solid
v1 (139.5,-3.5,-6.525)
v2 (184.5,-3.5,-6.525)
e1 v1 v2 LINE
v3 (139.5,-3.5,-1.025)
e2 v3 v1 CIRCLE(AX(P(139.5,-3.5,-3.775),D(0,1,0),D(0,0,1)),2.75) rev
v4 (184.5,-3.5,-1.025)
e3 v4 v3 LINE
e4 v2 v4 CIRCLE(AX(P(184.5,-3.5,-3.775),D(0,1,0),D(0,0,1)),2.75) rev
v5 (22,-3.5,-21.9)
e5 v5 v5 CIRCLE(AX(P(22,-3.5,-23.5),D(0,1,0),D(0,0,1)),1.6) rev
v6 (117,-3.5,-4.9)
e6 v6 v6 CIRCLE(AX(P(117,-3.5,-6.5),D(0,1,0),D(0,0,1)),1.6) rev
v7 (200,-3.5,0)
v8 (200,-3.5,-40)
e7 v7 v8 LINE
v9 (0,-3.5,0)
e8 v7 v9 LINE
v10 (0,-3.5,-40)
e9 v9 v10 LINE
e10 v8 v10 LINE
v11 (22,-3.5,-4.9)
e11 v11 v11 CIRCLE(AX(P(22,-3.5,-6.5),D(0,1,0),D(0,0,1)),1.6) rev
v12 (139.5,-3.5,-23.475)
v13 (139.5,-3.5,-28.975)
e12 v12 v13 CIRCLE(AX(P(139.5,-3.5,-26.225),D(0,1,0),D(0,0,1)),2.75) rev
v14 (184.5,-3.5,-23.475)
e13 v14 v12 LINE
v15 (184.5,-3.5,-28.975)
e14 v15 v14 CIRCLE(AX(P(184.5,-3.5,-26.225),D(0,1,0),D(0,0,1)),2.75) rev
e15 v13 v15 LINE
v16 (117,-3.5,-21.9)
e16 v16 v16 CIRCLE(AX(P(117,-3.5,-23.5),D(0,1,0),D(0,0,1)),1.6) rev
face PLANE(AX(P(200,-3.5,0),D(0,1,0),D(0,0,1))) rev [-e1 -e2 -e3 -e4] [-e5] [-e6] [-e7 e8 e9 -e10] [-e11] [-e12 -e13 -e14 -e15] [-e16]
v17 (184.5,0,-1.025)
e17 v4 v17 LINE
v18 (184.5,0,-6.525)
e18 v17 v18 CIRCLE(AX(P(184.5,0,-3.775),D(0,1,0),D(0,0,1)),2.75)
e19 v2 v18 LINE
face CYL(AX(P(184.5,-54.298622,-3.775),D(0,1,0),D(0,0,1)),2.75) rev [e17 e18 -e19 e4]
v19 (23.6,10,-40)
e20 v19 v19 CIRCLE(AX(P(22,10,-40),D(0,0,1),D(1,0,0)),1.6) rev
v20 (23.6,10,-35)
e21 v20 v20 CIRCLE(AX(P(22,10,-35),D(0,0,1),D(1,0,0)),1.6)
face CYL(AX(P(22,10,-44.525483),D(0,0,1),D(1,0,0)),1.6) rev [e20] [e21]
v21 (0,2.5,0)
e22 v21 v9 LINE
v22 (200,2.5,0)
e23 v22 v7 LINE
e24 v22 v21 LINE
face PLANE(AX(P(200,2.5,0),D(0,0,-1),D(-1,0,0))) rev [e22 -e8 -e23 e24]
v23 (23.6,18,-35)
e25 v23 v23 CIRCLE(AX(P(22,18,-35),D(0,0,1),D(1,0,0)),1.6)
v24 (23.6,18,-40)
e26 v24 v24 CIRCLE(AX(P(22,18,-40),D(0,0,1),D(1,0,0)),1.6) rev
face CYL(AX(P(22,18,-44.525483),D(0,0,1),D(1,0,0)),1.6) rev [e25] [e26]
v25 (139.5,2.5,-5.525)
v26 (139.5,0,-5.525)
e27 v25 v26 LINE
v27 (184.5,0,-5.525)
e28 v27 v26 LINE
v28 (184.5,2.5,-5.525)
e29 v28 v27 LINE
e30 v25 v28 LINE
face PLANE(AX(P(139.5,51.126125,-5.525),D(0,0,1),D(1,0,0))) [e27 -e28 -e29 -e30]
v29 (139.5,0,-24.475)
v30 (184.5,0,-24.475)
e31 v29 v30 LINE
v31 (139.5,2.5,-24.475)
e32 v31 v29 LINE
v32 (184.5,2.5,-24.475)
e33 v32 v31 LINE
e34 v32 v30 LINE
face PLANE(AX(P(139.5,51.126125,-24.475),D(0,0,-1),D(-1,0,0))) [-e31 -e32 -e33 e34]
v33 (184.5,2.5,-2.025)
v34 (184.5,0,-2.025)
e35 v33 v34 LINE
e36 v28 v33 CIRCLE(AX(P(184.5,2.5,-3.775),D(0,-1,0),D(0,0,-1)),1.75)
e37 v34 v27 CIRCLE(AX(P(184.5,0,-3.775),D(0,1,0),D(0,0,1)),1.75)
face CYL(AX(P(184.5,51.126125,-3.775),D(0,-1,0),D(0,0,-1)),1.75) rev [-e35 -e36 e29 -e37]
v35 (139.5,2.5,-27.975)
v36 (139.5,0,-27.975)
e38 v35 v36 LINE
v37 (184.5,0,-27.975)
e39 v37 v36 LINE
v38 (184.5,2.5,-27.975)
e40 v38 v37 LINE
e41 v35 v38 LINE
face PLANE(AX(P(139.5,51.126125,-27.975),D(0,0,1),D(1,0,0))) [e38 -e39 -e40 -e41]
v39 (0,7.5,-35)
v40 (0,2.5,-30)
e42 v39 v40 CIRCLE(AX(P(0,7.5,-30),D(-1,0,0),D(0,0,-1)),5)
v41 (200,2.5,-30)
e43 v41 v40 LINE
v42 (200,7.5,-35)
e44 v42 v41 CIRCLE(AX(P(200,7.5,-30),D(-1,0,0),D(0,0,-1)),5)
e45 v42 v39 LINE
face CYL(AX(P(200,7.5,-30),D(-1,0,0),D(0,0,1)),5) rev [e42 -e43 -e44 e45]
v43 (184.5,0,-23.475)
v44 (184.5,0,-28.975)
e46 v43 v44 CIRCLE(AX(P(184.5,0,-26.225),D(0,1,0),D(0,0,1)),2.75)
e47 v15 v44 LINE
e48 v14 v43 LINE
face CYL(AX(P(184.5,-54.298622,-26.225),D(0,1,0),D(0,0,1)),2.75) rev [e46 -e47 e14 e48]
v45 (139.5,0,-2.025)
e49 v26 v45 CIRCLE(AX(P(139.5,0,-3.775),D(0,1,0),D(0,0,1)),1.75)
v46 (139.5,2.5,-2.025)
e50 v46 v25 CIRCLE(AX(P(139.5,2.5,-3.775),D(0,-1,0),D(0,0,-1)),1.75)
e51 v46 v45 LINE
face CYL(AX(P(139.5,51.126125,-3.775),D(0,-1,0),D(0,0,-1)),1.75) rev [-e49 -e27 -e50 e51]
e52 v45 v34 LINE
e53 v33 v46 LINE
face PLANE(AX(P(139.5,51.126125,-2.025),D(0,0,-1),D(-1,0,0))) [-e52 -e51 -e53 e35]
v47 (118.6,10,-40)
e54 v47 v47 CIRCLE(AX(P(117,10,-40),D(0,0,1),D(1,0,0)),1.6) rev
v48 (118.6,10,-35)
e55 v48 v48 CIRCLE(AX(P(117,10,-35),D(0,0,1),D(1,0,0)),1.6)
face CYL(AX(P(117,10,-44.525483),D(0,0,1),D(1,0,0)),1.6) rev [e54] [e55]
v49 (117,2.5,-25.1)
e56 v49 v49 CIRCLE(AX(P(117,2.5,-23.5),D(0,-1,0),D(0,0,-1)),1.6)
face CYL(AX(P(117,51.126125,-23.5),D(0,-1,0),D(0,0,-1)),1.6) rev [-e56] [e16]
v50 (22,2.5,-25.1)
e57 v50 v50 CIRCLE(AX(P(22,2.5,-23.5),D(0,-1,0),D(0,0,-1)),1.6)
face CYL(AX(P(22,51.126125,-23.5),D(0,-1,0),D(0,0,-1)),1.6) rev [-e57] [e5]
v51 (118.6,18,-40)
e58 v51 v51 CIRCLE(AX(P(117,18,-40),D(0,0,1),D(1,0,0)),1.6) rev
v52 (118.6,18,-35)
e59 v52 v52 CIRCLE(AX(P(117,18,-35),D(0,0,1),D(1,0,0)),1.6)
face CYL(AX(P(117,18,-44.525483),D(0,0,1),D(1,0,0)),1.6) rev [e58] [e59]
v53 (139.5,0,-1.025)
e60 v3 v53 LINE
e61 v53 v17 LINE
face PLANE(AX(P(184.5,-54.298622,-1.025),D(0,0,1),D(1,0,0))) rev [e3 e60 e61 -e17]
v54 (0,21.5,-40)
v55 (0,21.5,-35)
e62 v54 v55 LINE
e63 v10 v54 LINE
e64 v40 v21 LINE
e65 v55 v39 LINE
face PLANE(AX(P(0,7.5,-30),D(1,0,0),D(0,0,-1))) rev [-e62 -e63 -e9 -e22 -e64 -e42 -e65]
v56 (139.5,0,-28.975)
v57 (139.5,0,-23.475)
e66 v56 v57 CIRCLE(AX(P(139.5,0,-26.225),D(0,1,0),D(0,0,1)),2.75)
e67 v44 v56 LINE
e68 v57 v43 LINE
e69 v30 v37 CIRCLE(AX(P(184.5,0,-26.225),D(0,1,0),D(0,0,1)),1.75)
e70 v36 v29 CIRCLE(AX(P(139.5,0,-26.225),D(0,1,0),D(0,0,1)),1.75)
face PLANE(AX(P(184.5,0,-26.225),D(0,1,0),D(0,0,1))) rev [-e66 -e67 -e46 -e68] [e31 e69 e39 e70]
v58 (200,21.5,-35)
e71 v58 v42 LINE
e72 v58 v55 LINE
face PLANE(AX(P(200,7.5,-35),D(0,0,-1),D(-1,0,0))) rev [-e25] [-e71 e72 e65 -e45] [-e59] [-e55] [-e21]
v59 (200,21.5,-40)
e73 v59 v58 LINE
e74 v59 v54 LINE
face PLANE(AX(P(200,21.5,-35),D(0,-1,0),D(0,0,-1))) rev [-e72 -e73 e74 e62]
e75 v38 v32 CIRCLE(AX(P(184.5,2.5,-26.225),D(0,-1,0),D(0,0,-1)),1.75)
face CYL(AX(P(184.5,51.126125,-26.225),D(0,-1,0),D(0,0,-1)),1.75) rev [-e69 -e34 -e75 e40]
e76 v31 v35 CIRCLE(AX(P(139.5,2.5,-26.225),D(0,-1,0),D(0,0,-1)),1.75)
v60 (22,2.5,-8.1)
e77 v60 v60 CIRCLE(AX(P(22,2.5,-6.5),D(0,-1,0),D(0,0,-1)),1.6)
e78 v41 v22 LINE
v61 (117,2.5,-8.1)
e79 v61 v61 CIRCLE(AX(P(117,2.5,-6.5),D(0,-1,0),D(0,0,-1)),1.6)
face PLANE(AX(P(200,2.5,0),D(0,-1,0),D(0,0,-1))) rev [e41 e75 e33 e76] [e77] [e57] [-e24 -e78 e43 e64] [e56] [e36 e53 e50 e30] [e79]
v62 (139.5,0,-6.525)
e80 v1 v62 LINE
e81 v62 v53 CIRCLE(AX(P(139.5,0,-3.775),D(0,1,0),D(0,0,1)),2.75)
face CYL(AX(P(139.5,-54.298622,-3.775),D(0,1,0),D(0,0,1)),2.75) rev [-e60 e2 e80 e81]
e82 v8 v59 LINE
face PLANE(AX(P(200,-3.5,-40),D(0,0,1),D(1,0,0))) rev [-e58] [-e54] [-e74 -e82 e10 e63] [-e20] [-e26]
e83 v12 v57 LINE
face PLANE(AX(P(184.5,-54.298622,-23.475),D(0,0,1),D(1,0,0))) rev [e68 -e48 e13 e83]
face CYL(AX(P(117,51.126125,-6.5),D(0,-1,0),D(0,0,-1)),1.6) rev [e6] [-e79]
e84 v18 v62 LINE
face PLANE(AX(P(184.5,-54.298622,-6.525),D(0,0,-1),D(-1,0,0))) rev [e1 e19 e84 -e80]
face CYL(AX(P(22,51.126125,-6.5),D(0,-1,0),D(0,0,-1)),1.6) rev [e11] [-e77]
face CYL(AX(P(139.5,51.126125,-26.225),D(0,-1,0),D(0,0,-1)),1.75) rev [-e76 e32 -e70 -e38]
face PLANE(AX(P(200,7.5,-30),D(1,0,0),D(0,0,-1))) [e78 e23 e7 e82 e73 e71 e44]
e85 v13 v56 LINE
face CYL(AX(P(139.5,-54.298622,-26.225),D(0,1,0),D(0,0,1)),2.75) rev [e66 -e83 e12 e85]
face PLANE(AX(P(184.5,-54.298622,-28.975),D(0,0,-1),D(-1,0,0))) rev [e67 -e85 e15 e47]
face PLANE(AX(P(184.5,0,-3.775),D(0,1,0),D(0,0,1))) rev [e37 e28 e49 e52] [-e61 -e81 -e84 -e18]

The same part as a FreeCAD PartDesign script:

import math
import FreeCAD as App
import Part
import Sketcher

V = App.Vector
Q = App.Units.Quantity

doc = App.newDocument("Part")
body = doc.addObject("PartDesign::Body", "Body")

sketch1 = body.newObject("Sketcher::SketchObject", "Sketch")
sketch1.AttachmentSupport = (doc.getObject("YZ_Plane"), [""])
sketch1.MapMode = "FlatFace"
sketch1.addGeometry([
    Part.LineSegment(V(2, -30, 0), V(2, 0, 0)),
    Part.LineSegment(V(2, 0, 0), V(-4, 0, 0)),
    Part.LineSegment(V(-4, 0, 0), V(-4, -40, 0)),
    Part.LineSegment(V(-4, -40, 0), V(22, -40, 0)),
    Part.LineSegment(V(22, -40, 0), V(22, -35, 0)),
    Part.LineSegment(V(22, -35, 0), V(8, -35, 0)),
    Part.ArcOfCircle(Part.Circle(V(8, -30, 0), V(0, 0, 1), 5), math.radians(180), math.radians(270)),
], False)
sketch1.addConstraint([
    Sketcher.Constraint("Coincident", 0, 2, 1, 1),
    Sketcher.Constraint("Coincident", 1, 2, 2, 1),
    Sketcher.Constraint("Coincident", 2, 2, 3, 1),
    Sketcher.Constraint("Coincident", 3, 2, 4, 1),
    Sketcher.Constraint("Coincident", 4, 2, 5, 1),
    Sketcher.Constraint("Tangent", 5, 2, 6, 2),
    Sketcher.Constraint("Tangent", 6, 1, 0, 1),
    Sketcher.Constraint("Vertical", 0),
    Sketcher.Constraint("Horizontal", 1),
    Sketcher.Constraint("Vertical", 2),
    Sketcher.Constraint("Horizontal", 3),
    Sketcher.Constraint("Vertical", 4),
    Sketcher.Constraint("Horizontal", 5),
    Sketcher.Constraint("PointOnObject", 0, 2, -1),
    Sketcher.Constraint("Radius", 6, Q("5 mm")),
    Sketcher.Constraint("DistanceX", 1, 2, 1, 1, Q("6 mm")),
    Sketcher.Constraint("DistanceX", 3, 1, 3, 2, Q("25 mm")),
    Sketcher.Constraint("DistanceY", 0, 1, 0, 2, Q("30 mm")),
    Sketcher.Constraint("DistanceY", 2, 2, 2, 1, Q("40 mm")),
    Sketcher.Constraint("DistanceX", -1, 1, 6, 3, Q("7.5 mm")),
])
pad1 = body.newObject("PartDesign::Pad", "Pad")
pad1.Profile = sketch1
pad1.Length = 200

sketch2 = body.newObject("Sketcher::SketchObject", "Sketch001")
sketch2.AttachmentSupport = (doc.getObject("XZ_Plane"), [""])
sketch2.MapMode = "FlatFace"
sketch2.addGeometry([
    Part.Circle(V(22, -23.5, 0), V(0, 0, 1), 1.6),
    Part.Circle(V(22, -6.5, 0), V(0, 0, 1), 1.6),
    Part.Circle(V(117, -23.5, 0), V(0, 0, 1), 1.6),
    Part.Circle(V(117, -6.5, 0), V(0, 0, 1), 1.6),
    Part.LineSegment(V(184.5, -28, 0), V(139.5, -28, 0)),
    Part.ArcOfCircle(Part.Circle(V(139.5, -26.2, 0), V(0, 0, 1), 1.8), math.radians(90), math.radians(270)),
    Part.LineSegment(V(139.5, -24.5, 0), V(184.5, -24.5, 0)),
    Part.ArcOfCircle(Part.Circle(V(184.5, -26.2, 0), V(0, 0, 1), 1.8), math.radians(-90), math.radians(90)),
    Part.LineSegment(V(184.5, -5.5, 0), V(139.5, -5.5, 0)),
    Part.ArcOfCircle(Part.Circle(V(139.5, -3.8, 0), V(0, 0, 1), 1.8), math.radians(90), math.radians(270)),
    Part.LineSegment(V(139.5, -2, 0), V(184.5, -2, 0)),
    Part.ArcOfCircle(Part.Circle(V(184.5, -3.8, 0), V(0, 0, 1), 1.8), math.radians(-90), math.radians(90)),
], False)
sketch2.addConstraint([
    Sketcher.Constraint("Tangent", 4, 2, 5, 2),
    Sketcher.Constraint("Tangent", 5, 1, 6, 1),
    Sketcher.Constraint("Tangent", 6, 2, 7, 2),
    Sketcher.Constraint("Tangent", 7, 1, 4, 1),
    Sketcher.Constraint("Tangent", 8, 2, 9, 2),
    Sketcher.Constraint("Tangent", 9, 1, 10, 1),
    Sketcher.Constraint("Tangent", 10, 2, 11, 2),
    Sketcher.Constraint("Tangent", 11, 1, 8, 1),
    Sketcher.Constraint("Horizontal", 4),
    Sketcher.Constraint("Horizontal", 6),
    Sketcher.Constraint("Horizontal", 8),
    Sketcher.Constraint("Horizontal", 10),
    Sketcher.Constraint("Equal", 0, 1),
    Sketcher.Constraint("Equal", 1, 2),
    Sketcher.Constraint("Equal", 2, 3),
    Sketcher.Constraint("Equal", 7, 9),
    Sketcher.Constraint("Horizontal", 0, 3, 2, 3),
    Sketcher.Constraint("Horizontal", 1, 3, 3, 3),
    Sketcher.Constraint("Vertical", 0, 3, 1, 3),
    Sketcher.Constraint("Vertical", 2, 3, 3, 3),
    Sketcher.Constraint("Vertical", 5, 3, 9, 3),
    Sketcher.Constraint("Vertical", 7, 3, 11, 3),
    Sketcher.Constraint("Diameter", 0, Q("3.2 mm")),
    Sketcher.Constraint("DistanceX", 4, 2, 4, 1, Q("45 mm")),
    Sketcher.Constraint("Radius", 5, Q("1.75 mm")),
    Sketcher.Constraint("DistanceX", -1, 1, 0, 3, Q("22 mm")),
    Sketcher.Constraint("DistanceX", -1, 1, 2, 3, Q("117 mm")),
    Sketcher.Constraint("DistanceY", 0, 3, 1, 3, Q("17 mm")),
    Sketcher.Constraint("DistanceY", 0, 3, -1, 1, Q("23.5 mm")),
    Sketcher.Constraint("DistanceX", -1, 1, 5, 3, Q("139.5 mm")),
    Sketcher.Constraint("DistanceY", 4, 2, 9, 3, Q("24.2 mm")),
    Sketcher.Constraint("DistanceY", 5, 3, -1, 1, Q("26.225 mm")),
])
pocket1 = body.newObject("PartDesign::Pocket", "Pocket")
pocket1.Profile = sketch2
pocket1.Length = 2.5

sketch3 = body.newObject("Sketcher::SketchObject", "Sketch002")
sketch3.AttachmentSupport = (doc.getObject("XZ_Plane"), [""])
sketch3.MapMode = "FlatFace"
sketch3.AttachmentOffset = App.Placement(V(0, 0, 3.5), App.Rotation())
sketch3.addGeometry([
    Part.Circle(V(22, -23.5, 0), V(0, 0, 1), 1.6),
    Part.Circle(V(22, -6.5, 0), V(0, 0, 1), 1.6),
    Part.Circle(V(117, -23.5, 0), V(0, 0, 1), 1.6),
    Part.Circle(V(117, -6.5, 0), V(0, 0, 1), 1.6),
    Part.LineSegment(V(139.5, -23.5, 0), V(184.5, -23.5, 0)),
    Part.ArcOfCircle(Part.Circle(V(184.5, -26.2, 0), V(0, 0, 1), 2.8), math.radians(-90), math.radians(90)),
    Part.LineSegment(V(184.5, -29, 0), V(139.5, -29, 0)),
    Part.ArcOfCircle(Part.Circle(V(139.5, -26.2, 0), V(0, 0, 1), 2.8), math.radians(90), math.radians(270)),
    Part.LineSegment(V(139.5, -1, 0), V(184.5, -1, 0)),
    Part.ArcOfCircle(Part.Circle(V(184.5, -3.8, 0), V(0, 0, 1), 2.8), math.radians(-90), math.radians(90)),
    Part.LineSegment(V(184.5, -6.5, 0), V(139.5, -6.5, 0)),
    Part.ArcOfCircle(Part.Circle(V(139.5, -3.8, 0), V(0, 0, 1), 2.8), math.radians(90), math.radians(270)),
], False)
sketch3.addConstraint([
    Sketcher.Constraint("Tangent", 4, 2, 5, 2),
    Sketcher.Constraint("Tangent", 5, 1, 6, 1),
    Sketcher.Constraint("Tangent", 6, 2, 7, 2),
    Sketcher.Constraint("Tangent", 7, 1, 4, 1),
    Sketcher.Constraint("Tangent", 8, 2, 9, 2),
    Sketcher.Constraint("Tangent", 9, 1, 10, 1),
    Sketcher.Constraint("Tangent", 10, 2, 11, 2),
    Sketcher.Constraint("Tangent", 11, 1, 8, 1),
    Sketcher.Constraint("Horizontal", 4),
    Sketcher.Constraint("Horizontal", 6),
    Sketcher.Constraint("Horizontal", 8),
    Sketcher.Constraint("Horizontal", 10),
    Sketcher.Constraint("Equal", 0, 1),
    Sketcher.Constraint("Equal", 1, 2),
    Sketcher.Constraint("Equal", 2, 3),
    Sketcher.Constraint("Equal", 7, 9),
    Sketcher.Constraint("Horizontal", 0, 3, 2, 3),
    Sketcher.Constraint("Horizontal", 1, 3, 3, 3),
    Sketcher.Constraint("Vertical", 0, 3, 1, 3),
    Sketcher.Constraint("Vertical", 2, 3, 3, 3),
    Sketcher.Constraint("Vertical", 5, 3, 9, 3),
    Sketcher.Constraint("Vertical", 7, 3, 11, 3),
    Sketcher.Constraint("Diameter", 0, Q("3.2 mm")),
    Sketcher.Constraint("DistanceX", 4, 1, 4, 2, Q("45 mm")),
    Sketcher.Constraint("Radius", 5, Q("2.75 mm")),
    Sketcher.Constraint("DistanceX", -1, 1, 0, 3, Q("22 mm")),
    Sketcher.Constraint("DistanceX", -1, 1, 2, 3, Q("117 mm")),
    Sketcher.Constraint("DistanceY", 0, 3, 1, 3, Q("17 mm")),
    Sketcher.Constraint("DistanceY", 0, 3, -1, 1, Q("23.5 mm")),
    Sketcher.Constraint("DistanceX", -1, 1, 5, 3, Q("184.5 mm")),
    Sketcher.Constraint("DistanceY", 4, 2, 9, 3, Q("19.7 mm")),
    Sketcher.Constraint("DistanceY", 5, 3, -1, 1, Q("26.225 mm")),
])
pocket2 = body.newObject("PartDesign::Pocket", "Pocket001")
pocket2.Profile = sketch3
pocket2.Length = 3.5

sketch4 = body.newObject("Sketcher::SketchObject", "Sketch003")
sketch4.AttachmentSupport = (doc.getObject("XY_Plane"), [""])
sketch4.MapMode = "FlatFace"
sketch4.AttachmentOffset = App.Placement(V(0, 0, -35), App.Rotation())
sketch4.addGeometry([
    Part.Circle(V(22, 10, 0), V(0, 0, 1), 1.6),
    Part.Circle(V(22, 18, 0), V(0, 0, 1), 1.6),
    Part.Circle(V(117, 10, 0), V(0, 0, 1), 1.6),
    Part.Circle(V(117, 18, 0), V(0, 0, 1), 1.6),
], False)
sketch4.addConstraint([
    Sketcher.Constraint("Equal", 0, 1),
    Sketcher.Constraint("Equal", 1, 2),
    Sketcher.Constraint("Equal", 2, 3),
    Sketcher.Constraint("Horizontal", 0, 3, 2, 3),
    Sketcher.Constraint("Horizontal", 1, 3, 3, 3),
    Sketcher.Constraint("Vertical", 0, 3, 1, 3),
    Sketcher.Constraint("Vertical", 2, 3, 3, 3),
    Sketcher.Constraint("Diameter", 0, Q("3.2 mm")),
    Sketcher.Constraint("DistanceX", -1, 1, 0, 3, Q("22 mm")),
    Sketcher.Constraint("DistanceY", -1, 1, 0, 3, Q("10 mm")),
    Sketcher.Constraint("DistanceY", -1, 1, 1, 3, Q("18 mm")),
    Sketcher.Constraint("DistanceX", -1, 1, 2, 3, Q("117 mm")),
])
pocket3 = body.newObject("PartDesign::Pocket", "Pocket002")
pocket3.Profile = sketch4
pocket3.Length = 5

doc.recompute()
